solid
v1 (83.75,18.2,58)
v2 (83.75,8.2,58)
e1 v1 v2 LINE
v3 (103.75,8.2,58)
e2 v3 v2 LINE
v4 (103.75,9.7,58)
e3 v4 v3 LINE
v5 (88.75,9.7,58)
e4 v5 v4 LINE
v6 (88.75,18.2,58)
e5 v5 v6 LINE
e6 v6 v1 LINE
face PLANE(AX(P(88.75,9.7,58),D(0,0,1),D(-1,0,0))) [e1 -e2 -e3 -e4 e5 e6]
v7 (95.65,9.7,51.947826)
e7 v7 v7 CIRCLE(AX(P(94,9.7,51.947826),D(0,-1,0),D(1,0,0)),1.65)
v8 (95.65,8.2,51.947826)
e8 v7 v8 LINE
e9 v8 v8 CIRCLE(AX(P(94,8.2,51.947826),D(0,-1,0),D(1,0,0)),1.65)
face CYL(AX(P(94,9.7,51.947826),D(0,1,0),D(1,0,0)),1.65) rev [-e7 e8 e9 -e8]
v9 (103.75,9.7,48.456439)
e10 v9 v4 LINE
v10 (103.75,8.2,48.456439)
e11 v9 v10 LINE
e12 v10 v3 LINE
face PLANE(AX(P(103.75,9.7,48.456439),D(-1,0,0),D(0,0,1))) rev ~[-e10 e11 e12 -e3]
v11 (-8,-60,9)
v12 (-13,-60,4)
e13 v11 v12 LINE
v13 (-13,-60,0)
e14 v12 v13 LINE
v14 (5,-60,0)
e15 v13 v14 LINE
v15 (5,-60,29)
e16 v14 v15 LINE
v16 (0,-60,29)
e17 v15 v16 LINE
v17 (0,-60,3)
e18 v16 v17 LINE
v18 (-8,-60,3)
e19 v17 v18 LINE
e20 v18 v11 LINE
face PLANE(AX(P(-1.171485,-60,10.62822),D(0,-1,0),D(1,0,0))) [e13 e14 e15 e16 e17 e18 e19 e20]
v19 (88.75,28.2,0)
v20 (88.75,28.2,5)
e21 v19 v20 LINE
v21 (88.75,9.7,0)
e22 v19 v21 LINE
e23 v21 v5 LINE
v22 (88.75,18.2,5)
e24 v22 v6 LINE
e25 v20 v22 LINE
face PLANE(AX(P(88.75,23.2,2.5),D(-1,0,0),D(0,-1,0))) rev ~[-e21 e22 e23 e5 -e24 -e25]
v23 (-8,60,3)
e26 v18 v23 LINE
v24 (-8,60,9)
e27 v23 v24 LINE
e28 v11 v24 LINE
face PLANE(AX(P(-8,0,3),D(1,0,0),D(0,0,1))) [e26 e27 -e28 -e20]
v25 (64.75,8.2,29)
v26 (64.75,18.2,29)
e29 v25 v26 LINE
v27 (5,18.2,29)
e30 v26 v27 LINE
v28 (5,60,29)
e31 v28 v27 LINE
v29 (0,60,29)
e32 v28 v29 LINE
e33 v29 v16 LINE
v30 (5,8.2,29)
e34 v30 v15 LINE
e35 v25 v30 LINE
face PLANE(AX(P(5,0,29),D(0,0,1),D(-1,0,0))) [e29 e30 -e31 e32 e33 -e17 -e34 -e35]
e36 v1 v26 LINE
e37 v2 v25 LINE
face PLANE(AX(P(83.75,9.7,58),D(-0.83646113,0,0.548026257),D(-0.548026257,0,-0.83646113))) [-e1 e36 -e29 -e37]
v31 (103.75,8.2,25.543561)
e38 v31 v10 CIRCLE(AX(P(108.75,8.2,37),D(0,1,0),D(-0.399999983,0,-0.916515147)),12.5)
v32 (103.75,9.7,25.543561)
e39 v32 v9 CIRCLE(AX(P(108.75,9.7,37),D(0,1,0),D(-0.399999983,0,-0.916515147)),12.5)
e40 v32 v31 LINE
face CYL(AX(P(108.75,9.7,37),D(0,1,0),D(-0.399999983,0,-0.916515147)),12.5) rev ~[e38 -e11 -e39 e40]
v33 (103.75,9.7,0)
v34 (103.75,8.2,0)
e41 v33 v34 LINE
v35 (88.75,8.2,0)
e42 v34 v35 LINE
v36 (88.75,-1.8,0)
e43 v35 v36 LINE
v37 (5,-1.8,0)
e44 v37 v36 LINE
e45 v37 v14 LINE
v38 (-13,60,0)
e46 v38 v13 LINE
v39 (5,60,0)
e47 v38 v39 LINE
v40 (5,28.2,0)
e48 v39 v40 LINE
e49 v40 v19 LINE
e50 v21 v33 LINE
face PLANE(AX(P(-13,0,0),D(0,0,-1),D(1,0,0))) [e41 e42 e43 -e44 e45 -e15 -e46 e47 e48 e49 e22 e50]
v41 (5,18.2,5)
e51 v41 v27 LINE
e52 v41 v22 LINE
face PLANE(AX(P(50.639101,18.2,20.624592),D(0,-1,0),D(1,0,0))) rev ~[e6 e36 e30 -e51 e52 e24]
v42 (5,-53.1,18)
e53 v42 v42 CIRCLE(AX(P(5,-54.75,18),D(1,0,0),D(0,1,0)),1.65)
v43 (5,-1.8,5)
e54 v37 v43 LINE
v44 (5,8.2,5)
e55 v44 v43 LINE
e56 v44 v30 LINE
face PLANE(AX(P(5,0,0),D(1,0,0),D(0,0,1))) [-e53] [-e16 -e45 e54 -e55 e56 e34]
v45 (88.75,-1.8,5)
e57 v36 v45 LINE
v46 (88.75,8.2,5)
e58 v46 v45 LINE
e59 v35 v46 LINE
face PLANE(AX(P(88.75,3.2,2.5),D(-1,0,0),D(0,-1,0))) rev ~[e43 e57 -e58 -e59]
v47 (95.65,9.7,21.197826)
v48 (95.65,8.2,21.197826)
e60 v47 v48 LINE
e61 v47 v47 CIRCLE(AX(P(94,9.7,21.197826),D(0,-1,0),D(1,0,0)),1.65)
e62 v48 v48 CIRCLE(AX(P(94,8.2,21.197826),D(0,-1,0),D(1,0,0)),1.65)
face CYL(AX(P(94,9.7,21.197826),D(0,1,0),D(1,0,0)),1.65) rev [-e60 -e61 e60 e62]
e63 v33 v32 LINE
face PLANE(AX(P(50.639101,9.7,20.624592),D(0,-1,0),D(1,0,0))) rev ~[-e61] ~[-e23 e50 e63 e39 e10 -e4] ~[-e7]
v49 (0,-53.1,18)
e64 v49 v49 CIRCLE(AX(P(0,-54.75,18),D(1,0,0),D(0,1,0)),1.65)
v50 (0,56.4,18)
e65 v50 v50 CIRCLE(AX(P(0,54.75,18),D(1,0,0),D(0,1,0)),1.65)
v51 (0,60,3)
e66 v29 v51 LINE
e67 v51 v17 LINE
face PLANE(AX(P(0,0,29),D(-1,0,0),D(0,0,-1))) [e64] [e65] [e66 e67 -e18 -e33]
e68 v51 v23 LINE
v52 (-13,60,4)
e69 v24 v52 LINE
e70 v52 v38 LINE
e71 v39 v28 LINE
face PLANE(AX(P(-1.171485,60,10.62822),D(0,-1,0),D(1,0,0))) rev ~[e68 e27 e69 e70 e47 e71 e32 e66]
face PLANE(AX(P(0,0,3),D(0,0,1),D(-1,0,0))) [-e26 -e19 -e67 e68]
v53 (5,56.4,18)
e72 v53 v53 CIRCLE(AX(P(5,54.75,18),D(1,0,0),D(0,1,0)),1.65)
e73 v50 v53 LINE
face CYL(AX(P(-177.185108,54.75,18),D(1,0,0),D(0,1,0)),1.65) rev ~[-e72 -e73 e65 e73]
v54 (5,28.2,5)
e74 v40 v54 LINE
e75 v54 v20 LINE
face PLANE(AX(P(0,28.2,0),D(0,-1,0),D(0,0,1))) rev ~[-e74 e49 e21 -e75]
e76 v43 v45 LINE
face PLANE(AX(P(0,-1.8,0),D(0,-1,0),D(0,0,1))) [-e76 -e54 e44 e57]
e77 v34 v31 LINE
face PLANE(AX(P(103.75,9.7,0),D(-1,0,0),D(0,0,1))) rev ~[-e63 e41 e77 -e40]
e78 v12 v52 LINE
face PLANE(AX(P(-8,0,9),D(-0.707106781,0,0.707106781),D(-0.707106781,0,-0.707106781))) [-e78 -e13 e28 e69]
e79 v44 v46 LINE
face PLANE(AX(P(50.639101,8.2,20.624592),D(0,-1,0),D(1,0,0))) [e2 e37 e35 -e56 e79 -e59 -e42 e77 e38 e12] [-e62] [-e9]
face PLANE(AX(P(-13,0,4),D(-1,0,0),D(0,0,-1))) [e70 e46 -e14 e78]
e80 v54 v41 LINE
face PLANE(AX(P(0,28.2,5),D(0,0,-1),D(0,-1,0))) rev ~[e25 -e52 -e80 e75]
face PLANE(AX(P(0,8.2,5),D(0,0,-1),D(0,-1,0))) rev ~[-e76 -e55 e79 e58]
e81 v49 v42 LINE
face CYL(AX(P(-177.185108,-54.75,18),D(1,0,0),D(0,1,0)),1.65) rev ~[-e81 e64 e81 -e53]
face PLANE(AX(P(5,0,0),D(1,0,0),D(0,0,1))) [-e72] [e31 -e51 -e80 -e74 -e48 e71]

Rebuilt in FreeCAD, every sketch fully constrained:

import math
import FreeCAD as App
import Part
import Sketcher
from FreeCAD import Vector
Q = App.Units.Quantity

doc = App.newDocument("Part")
body = doc.addObject("PartDesign::Body", "Body")

# Sketch on XZ plane
sketch1 = body.newObject("Sketcher::SketchObject", "Sketch")
sketch1.AttachmentSupport = (doc.getObject("XZ_Plane"), [""])
sketch1.MapMode = "FlatFace"
sketch1.AttachmentOffset = App.Placement(Vector(0, 0, -9.7), App.Rotation())
sketch1.addGeometry(Part.LineSegment(Vector(88.75, 58, 0), Vector(88.75, 0, 0)), False)
sketch1.addGeometry(Part.LineSegment(Vector(88.75, 0, 0), Vector(103.75, 0, 0)), False)
sketch1.addGeometry(Part.LineSegment(Vector(103.75, 0, 0), Vector(103.75, 25.543561, 0)), False)
sketch1.addGeometry(Part.ArcOfCircle(Part.Circle(Vector(108.75, 37, 0), Vector(0, 0, 1), 12.5), math.radians(113.578177), math.radians(246.421823)), False)
sketch1.addGeometry(Part.LineSegment(Vector(103.75, 48.456439, 0), Vector(103.75, 58, 0)), False)
sketch1.addGeometry(Part.LineSegment(Vector(103.75, 58, 0), Vector(88.75, 58, 0)), False)
sketch1.addGeometry(Part.Circle(Vector(94, 21.197826, 0), Vector(0, 0, 1), 1.65), False)
sketch1.addGeometry(Part.Circle(Vector(94, 51.947826, 0), Vector(0, 0, 1), 1.65), False)
sketch1.addConstraint(Sketcher.Constraint("Coincident", 0, 2, 1, 1))
sketch1.addConstraint(Sketcher.Constraint("Coincident", 1, 2, 2, 1))
sketch1.addConstraint(Sketcher.Constraint("Coincident", 2, 2, 3, 2))
sketch1.addConstraint(Sketcher.Constraint("Coincident", 3, 1, 4, 1))
sketch1.addConstraint(Sketcher.Constraint("Coincident", 4, 2, 5, 1))
sketch1.addConstraint(Sketcher.Constraint("Coincident", 5, 2, 0, 1))
sketch1.addConstraint(Sketcher.Constraint("Vertical", 0))
sketch1.addConstraint(Sketcher.Constraint("Horizontal", 1))
sketch1.addConstraint(Sketcher.Constraint("Vertical", 2))
sketch1.addConstraint(Sketcher.Constraint("Vertical", 4))
sketch1.addConstraint(Sketcher.Constraint("Horizontal", 5))
sketch1.addConstraint(Sketcher.Constraint("Equal", 6, 7))
sketch1.addConstraint(Sketcher.Constraint("PointOnObject", 0, 2, -1))
sketch1.addConstraint(Sketcher.Constraint("Vertical", 6, 3, 7, 3))
sketch1.addConstraint(Sketcher.Constraint("Vertical", 2, 2, 3, 1))
sketch1.addConstraint(Sketcher.Constraint("Diameter", 6, Q("3.3 mm")))
sketch1.addConstraint(Sketcher.Constraint("Radius", 3, Q("12.5 mm")))
sketch1.addConstraint(Sketcher.Constraint("DistanceX", 1, 1, 1, 2, Q("15 mm")))
sketch1.addConstraint(Sketcher.Constraint("DistanceY", 0, 2, 0, 1, Q("58 mm")))
sketch1.addConstraint(Sketcher.Constraint("DistanceY", -1, 1, 3, 3, Q("37 mm")))
sketch1.addConstraint(Sketcher.Constraint("DistanceX", -1, 1, 6, 3, Q("94 mm")))
sketch1.addConstraint(Sketcher.Constraint("DistanceX", 0, 2, 3, 3, Q("20 mm")))
sketch1.addConstraint(Sketcher.Constraint("DistanceX", -1, 1, 3, 3, Q("108.75 mm")))
sketch1.addConstraint(Sketcher.Constraint("DistanceY", 6, 3, 7, 3, Q("30.75 mm")))
sketch1.addConstraint(Sketcher.Constraint("DistanceY", -1, 1, 6, 3, Q("21.197826 mm")))
pad1 = body.newObject("PartDesign::Pad", "Pad")
pad1.Profile = sketch1
pad1.Length = 1.5

# Sketch on XZ plane
sketch2 = body.newObject("Sketcher::SketchObject", "Sketch001")
sketch2.AttachmentSupport = (doc.getObject("XZ_Plane"), [""])
sketch2.MapMode = "FlatFace"
sketch2.AttachmentOffset = App.Placement(Vector(0, 0, -9.7), App.Rotation())
sketch2.addGeometry(Part.LineSegment(Vector(0, 0, 0), Vector(88.75, 0, 0)), False)
sketch2.addGeometry(Part.LineSegment(Vector(88.75, 0, 0), Vector(88.75, 58, 0)), False)
sketch2.addGeometry(Part.LineSegment(Vector(88.75, 58, 0), Vector(83.75, 58, 0)), False)
sketch2.addGeometry(Part.LineSegment(Vector(83.75, 58, 0), Vector(64.75, 29, 0)), False)
sketch2.addGeometry(Part.LineSegment(Vector(64.75, 29, 0), Vector(0, 29, 0)), False)
sketch2.addGeometry(Part.LineSegment(Vector(0, 29, 0), Vector(0, 0, 0)), False)
sketch2.addConstraint(Sketcher.Constraint("Coincident", 0, 2, 1, 1))
sketch2.addConstraint(Sketcher.Constraint("Coincident", 1, 2, 2, 1))
sketch2.addConstraint(Sketcher.Constraint("Coincident", 2, 2, 3, 1))
sketch2.addConstraint(Sketcher.Constraint("Coincident", 3, 2, 4, 1))
sketch2.addConstraint(Sketcher.Constraint("Coincident", 4, 2, 5, 1))
sketch2.addConstraint(Sketcher.Constraint("Coincident", 5, 2, 0, 1))
sketch2.addConstraint(Sketcher.Constraint("Horizontal", 0))
sketch2.addConstraint(Sketcher.Constraint("Vertical", 1))
sketch2.addConstraint(Sketcher.Constraint("Horizontal", 2))
sketch2.addConstraint(Sketcher.Constraint("Horizontal", 4))
sketch2.addConstraint(Sketcher.Constraint("Vertical", 5))
sketch2.addConstraint(Sketcher.Constraint("Coincident", 5, 2, -1, 1))
sketch2.addConstraint(Sketcher.Constraint("DistanceX", 2, 2, 2, 1, Q("5 mm")))
sketch2.addConstraint(Sketcher.Constraint("DistanceY", 1, 1, 1, 2, Q("58 mm")))
sketch2.addConstraint(Sketcher.Constraint("DistanceY", 5, 2, 5, 1, Q("29 mm")))
sketch2.addConstraint(Sketcher.Constraint("DistanceX", 3, 2, 2, 2, Q("19 mm")))
sketch2.addConstraint(Sketcher.Constraint("DistanceX", 0, 1, 0, 2, Q("88.75 mm")))
pad2 = body.newObject("PartDesign::Pad", "Pad001")
pad2.Profile = sketch2
pad2.Type = "TwoLengths"
pad2.Length = 1.5
pad2.Length2 = 8.5

# Sketch on YZ plane
sketch3 = body.newObject("Sketcher::SketchObject", "Sketch002")
sketch3.AttachmentSupport = (doc.getObject("YZ_Plane"), [""])
sketch3.MapMode = "FlatFace"
sketch3.addGeometry(Part.LineSegment(Vector(28.2, 5, 0), Vector(28.2, 0, 0)), False)
sketch3.addGeometry(Part.LineSegment(Vector(28.2, 0, 0), Vector(18.2, 0, 0)), False)
sketch3.addGeometry(Part.LineSegment(Vector(18.2, 0, 0), Vector(18.2, 5, 0)), False)
sketch3.addGeometry(Part.LineSegment(Vector(18.2, 5, 0), Vector(28.2, 5, 0)), False)
sketch3.addGeometry(Part.LineSegment(Vector(8.2, 5, 0), Vector(8.2, 0, 0)), False)
sketch3.addGeometry(Part.LineSegment(Vector(8.2, 0, 0), Vector(-1.8, 0, 0)), False)
sketch3.addGeometry(Part.LineSegment(Vector(-1.8, 0, 0), Vector(-1.8, 5, 0)), False)
sketch3.addGeometry(Part.LineSegment(Vector(-1.8, 5, 0), Vector(8.2, 5, 0)), False)
sketch3.addConstraint(Sketcher.Constraint("Coincident", 0, 2, 1, 1))
sketch3.addConstraint(Sketcher.Constraint("Coincident", 1, 2, 2, 1))
sketch3.addConstraint(Sketcher.Constraint("Coincident", 2, 2, 3, 1))
sketch3.addConstraint(Sketcher.Constraint("Coincident", 3, 2, 0, 1))
sketch3.addConstraint(Sketcher.Constraint("Coincident", 4, 2, 5, 1))
sketch3.addConstraint(Sketcher.Constraint("Coincident", 5, 2, 6, 1))
sketch3.addConstraint(Sketcher.Constraint("Coincident", 6, 2, 7, 1))
sketch3.addConstraint(Sketcher.Constraint("Coincident", 7, 2, 4, 1))
sketch3.addConstraint(Sketcher.Constraint("Vertical", 0))
sketch3.addConstraint(Sketcher.Constraint("Horizontal", 1))
sketch3.addConstraint(Sketcher.Constraint("Vertical", 2))
sketch3.addConstraint(Sketcher.Constraint("Horizontal", 3))
sketch3.addConstraint(Sketcher.Constraint("Vertical", 4))
sketch3.addConstraint(Sketcher.Constraint("Horizontal", 5))
sketch3.addConstraint(Sketcher.Constraint("Vertical", 6))
sketch3.addConstraint(Sketcher.Constraint("Horizontal", 7))
sketch3.addConstraint(Sketcher.Constraint("PointOnObject", 0, 2, -1))
sketch3.addConstraint(Sketcher.Constraint("PointOnObject", 4, 2, -1))
sketch3.addConstraint(Sketcher.Constraint("Horizontal", 3, 2, 6, 2))
sketch3.addConstraint(Sketcher.Constraint("Equal", 3, 5))
sketch3.addConstraint(Sketcher.Constraint("DistanceX", 1, 2, 1, 1, Q("10 mm")))
sketch3.addConstraint(Sketcher.Constraint("DistanceY", 0, 2, 0, 1, Q("5 mm")))
sketch3.addConstraint(Sketcher.Constraint("DistanceX", 4, 2, 1, 2, Q("10 mm")))
sketch3.addConstraint(Sketcher.Constraint("DistanceX", -1, 1, 0, 2, Q("28.2 mm")))
pad3 = body.newObject("PartDesign::Pad", "Pad002")
pad3.Profile = sketch3
pad3.Type = "UpToLast"

# Sketch on XZ plane
sketch4 = body.newObject("Sketcher::SketchObject", "Sketch003")
sketch4.AttachmentSupport = (doc.getObject("XZ_Plane"), [""])
sketch4.MapMode = "FlatFace"
sketch4.addGeometry(Part.LineSegment(Vector(-13, 4, 0), Vector(-13, 0, 0)), False)
sketch4.addGeometry(Part.LineSegment(Vector(-13, 0, 0), Vector(5, 0, 0)), False)
sketch4.addGeometry(Part.LineSegment(Vector(5, 0, 0), Vector(5, 29, 0)), False)
sketch4.addGeometry(Part.LineSegment(Vector(5, 29, 0), Vector(0, 29, 0)), False)
sketch4.addGeometry(Part.LineSegment(Vector(0, 29, 0), Vector(0, 3, 0)), False)
sketch4.addGeometry(Part.LineSegment(Vector(0, 3, 0), Vector(-8, 3, 0)), False)
sketch4.addGeometry(Part.LineSegment(Vector(-8, 3, 0), Vector(-8, 9, 0)), False)
sketch4.addGeometry(Part.LineSegment(Vector(-8, 9, 0), Vector(-13, 4, 0)), False)
sketch4.addConstraint(Sketcher.Constraint("Coincident", 0, 2, 1, 1))
sketch4.addConstraint(Sketcher.Constraint("Coincident", 1, 2, 2, 1))
sketch4.addConstraint(Sketcher.Constraint("Coincident", 2, 2, 3, 1))
sketch4.addConstraint(Sketcher.Constraint("Coincident", 3, 2, 4, 1))
sketch4.addConstraint(Sketcher.Constraint("Coincident", 4, 2, 5, 1))
sketch4.addConstraint(Sketcher.Constraint("Coincident", 5, 2, 6, 1))
sketch4.addConstraint(Sketcher.Constraint("Coincident", 6, 2, 7, 1))
sketch4.addConstraint(Sketcher.Constraint("Coincident", 7, 2, 0, 1))
sketch4.addConstraint(Sketcher.Constraint("Vertical", 0))
sketch4.addConstraint(Sketcher.Constraint("Horizontal", 1))
sketch4.addConstraint(Sketcher.Constraint("Vertical", 2))
sketch4.addConstraint(Sketcher.Constraint("Horizontal", 3))
sketch4.addConstraint(Sketcher.Constraint("Vertical", 4))
sketch4.addConstraint(Sketcher.Constraint("Horizontal", 5))
sketch4.addConstraint(Sketcher.Constraint("Vertical", 6))
sketch4.addConstraint(Sketcher.Constraint("PointOnObject", 0, 2, -1))
sketch4.addConstraint(Sketcher.Constraint("PointOnObject", 3, 2, -2))
sketch4.addConstraint(Sketcher.Constraint("DistanceX", 1, 1, 1, 2, Q("18 mm")))
sketch4.addConstraint(Sketcher.Constraint("DistanceX", 3, 2, 3, 1, Q("5 mm")))
sketch4.addConstraint(Sketcher.Constraint("DistanceX", 5, 2, 5, 1, Q("8 mm")))
sketch4.addConstraint(Sketcher.Constraint("DistanceY", 0, 2, 0, 1, Q("4 mm")))
sketch4.addConstraint(Sketcher.Constraint("DistanceY", 2, 1, 2, 2, Q("29 mm")))
sketch4.addConstraint(Sketcher.Constraint("DistanceY", 4, 2, 4, 1, Q("26 mm")))
sketch4.addConstraint(Sketcher.Constraint("DistanceY", 6, 1, 6, 2, Q("6 mm")))
pad4 = body.newObject("PartDesign::Pad", "Pad003")
pad4.Profile = sketch4
pad4.Length = 120
pad4.Midplane = True

# Sketch on YZ plane
sketch5 = body.newObject("Sketcher::SketchObject", "Sketch004")
sketch5.AttachmentSupport = (doc.getObject("YZ_Plane"), [""])
sketch5.MapMode = "FlatFace"
sketch5.addGeometry(Part.Circle(Vector(-54.75, 18, 0), Vector(0, 0, 1), 1.65), False)
sketch5.addGeometry(Part.Circle(Vector(54.75, 18, 0), Vector(0, 0, 1), 1.65), False)
sketch5.addConstraint(Sketcher.Constraint("Equal", 0, 1))
sketch5.addConstraint(Sketcher.Constraint("Symmetric", 0, 3, 1, 3, -2))
sketch5.addConstraint(Sketcher.Constraint("Diameter", 0, Q("3.3 mm")))
sketch5.addConstraint(Sketcher.Constraint("DistanceY", -1, 1, 0, 3, Q("18 mm")))
sketch5.addConstraint(Sketcher.Constraint("DistanceX", 0, 3, 1, 3, Q("109.5 mm")))
doc.recompute()
hole = body.newObject("PartDesign::Hole", "Hole")
hole.Profile = sketch5
hole.ThreadType = "None"
hole.Diameter = 3.3
hole.DepthType = "ThroughAll"
hole.Reversed = True

doc.recompute()
